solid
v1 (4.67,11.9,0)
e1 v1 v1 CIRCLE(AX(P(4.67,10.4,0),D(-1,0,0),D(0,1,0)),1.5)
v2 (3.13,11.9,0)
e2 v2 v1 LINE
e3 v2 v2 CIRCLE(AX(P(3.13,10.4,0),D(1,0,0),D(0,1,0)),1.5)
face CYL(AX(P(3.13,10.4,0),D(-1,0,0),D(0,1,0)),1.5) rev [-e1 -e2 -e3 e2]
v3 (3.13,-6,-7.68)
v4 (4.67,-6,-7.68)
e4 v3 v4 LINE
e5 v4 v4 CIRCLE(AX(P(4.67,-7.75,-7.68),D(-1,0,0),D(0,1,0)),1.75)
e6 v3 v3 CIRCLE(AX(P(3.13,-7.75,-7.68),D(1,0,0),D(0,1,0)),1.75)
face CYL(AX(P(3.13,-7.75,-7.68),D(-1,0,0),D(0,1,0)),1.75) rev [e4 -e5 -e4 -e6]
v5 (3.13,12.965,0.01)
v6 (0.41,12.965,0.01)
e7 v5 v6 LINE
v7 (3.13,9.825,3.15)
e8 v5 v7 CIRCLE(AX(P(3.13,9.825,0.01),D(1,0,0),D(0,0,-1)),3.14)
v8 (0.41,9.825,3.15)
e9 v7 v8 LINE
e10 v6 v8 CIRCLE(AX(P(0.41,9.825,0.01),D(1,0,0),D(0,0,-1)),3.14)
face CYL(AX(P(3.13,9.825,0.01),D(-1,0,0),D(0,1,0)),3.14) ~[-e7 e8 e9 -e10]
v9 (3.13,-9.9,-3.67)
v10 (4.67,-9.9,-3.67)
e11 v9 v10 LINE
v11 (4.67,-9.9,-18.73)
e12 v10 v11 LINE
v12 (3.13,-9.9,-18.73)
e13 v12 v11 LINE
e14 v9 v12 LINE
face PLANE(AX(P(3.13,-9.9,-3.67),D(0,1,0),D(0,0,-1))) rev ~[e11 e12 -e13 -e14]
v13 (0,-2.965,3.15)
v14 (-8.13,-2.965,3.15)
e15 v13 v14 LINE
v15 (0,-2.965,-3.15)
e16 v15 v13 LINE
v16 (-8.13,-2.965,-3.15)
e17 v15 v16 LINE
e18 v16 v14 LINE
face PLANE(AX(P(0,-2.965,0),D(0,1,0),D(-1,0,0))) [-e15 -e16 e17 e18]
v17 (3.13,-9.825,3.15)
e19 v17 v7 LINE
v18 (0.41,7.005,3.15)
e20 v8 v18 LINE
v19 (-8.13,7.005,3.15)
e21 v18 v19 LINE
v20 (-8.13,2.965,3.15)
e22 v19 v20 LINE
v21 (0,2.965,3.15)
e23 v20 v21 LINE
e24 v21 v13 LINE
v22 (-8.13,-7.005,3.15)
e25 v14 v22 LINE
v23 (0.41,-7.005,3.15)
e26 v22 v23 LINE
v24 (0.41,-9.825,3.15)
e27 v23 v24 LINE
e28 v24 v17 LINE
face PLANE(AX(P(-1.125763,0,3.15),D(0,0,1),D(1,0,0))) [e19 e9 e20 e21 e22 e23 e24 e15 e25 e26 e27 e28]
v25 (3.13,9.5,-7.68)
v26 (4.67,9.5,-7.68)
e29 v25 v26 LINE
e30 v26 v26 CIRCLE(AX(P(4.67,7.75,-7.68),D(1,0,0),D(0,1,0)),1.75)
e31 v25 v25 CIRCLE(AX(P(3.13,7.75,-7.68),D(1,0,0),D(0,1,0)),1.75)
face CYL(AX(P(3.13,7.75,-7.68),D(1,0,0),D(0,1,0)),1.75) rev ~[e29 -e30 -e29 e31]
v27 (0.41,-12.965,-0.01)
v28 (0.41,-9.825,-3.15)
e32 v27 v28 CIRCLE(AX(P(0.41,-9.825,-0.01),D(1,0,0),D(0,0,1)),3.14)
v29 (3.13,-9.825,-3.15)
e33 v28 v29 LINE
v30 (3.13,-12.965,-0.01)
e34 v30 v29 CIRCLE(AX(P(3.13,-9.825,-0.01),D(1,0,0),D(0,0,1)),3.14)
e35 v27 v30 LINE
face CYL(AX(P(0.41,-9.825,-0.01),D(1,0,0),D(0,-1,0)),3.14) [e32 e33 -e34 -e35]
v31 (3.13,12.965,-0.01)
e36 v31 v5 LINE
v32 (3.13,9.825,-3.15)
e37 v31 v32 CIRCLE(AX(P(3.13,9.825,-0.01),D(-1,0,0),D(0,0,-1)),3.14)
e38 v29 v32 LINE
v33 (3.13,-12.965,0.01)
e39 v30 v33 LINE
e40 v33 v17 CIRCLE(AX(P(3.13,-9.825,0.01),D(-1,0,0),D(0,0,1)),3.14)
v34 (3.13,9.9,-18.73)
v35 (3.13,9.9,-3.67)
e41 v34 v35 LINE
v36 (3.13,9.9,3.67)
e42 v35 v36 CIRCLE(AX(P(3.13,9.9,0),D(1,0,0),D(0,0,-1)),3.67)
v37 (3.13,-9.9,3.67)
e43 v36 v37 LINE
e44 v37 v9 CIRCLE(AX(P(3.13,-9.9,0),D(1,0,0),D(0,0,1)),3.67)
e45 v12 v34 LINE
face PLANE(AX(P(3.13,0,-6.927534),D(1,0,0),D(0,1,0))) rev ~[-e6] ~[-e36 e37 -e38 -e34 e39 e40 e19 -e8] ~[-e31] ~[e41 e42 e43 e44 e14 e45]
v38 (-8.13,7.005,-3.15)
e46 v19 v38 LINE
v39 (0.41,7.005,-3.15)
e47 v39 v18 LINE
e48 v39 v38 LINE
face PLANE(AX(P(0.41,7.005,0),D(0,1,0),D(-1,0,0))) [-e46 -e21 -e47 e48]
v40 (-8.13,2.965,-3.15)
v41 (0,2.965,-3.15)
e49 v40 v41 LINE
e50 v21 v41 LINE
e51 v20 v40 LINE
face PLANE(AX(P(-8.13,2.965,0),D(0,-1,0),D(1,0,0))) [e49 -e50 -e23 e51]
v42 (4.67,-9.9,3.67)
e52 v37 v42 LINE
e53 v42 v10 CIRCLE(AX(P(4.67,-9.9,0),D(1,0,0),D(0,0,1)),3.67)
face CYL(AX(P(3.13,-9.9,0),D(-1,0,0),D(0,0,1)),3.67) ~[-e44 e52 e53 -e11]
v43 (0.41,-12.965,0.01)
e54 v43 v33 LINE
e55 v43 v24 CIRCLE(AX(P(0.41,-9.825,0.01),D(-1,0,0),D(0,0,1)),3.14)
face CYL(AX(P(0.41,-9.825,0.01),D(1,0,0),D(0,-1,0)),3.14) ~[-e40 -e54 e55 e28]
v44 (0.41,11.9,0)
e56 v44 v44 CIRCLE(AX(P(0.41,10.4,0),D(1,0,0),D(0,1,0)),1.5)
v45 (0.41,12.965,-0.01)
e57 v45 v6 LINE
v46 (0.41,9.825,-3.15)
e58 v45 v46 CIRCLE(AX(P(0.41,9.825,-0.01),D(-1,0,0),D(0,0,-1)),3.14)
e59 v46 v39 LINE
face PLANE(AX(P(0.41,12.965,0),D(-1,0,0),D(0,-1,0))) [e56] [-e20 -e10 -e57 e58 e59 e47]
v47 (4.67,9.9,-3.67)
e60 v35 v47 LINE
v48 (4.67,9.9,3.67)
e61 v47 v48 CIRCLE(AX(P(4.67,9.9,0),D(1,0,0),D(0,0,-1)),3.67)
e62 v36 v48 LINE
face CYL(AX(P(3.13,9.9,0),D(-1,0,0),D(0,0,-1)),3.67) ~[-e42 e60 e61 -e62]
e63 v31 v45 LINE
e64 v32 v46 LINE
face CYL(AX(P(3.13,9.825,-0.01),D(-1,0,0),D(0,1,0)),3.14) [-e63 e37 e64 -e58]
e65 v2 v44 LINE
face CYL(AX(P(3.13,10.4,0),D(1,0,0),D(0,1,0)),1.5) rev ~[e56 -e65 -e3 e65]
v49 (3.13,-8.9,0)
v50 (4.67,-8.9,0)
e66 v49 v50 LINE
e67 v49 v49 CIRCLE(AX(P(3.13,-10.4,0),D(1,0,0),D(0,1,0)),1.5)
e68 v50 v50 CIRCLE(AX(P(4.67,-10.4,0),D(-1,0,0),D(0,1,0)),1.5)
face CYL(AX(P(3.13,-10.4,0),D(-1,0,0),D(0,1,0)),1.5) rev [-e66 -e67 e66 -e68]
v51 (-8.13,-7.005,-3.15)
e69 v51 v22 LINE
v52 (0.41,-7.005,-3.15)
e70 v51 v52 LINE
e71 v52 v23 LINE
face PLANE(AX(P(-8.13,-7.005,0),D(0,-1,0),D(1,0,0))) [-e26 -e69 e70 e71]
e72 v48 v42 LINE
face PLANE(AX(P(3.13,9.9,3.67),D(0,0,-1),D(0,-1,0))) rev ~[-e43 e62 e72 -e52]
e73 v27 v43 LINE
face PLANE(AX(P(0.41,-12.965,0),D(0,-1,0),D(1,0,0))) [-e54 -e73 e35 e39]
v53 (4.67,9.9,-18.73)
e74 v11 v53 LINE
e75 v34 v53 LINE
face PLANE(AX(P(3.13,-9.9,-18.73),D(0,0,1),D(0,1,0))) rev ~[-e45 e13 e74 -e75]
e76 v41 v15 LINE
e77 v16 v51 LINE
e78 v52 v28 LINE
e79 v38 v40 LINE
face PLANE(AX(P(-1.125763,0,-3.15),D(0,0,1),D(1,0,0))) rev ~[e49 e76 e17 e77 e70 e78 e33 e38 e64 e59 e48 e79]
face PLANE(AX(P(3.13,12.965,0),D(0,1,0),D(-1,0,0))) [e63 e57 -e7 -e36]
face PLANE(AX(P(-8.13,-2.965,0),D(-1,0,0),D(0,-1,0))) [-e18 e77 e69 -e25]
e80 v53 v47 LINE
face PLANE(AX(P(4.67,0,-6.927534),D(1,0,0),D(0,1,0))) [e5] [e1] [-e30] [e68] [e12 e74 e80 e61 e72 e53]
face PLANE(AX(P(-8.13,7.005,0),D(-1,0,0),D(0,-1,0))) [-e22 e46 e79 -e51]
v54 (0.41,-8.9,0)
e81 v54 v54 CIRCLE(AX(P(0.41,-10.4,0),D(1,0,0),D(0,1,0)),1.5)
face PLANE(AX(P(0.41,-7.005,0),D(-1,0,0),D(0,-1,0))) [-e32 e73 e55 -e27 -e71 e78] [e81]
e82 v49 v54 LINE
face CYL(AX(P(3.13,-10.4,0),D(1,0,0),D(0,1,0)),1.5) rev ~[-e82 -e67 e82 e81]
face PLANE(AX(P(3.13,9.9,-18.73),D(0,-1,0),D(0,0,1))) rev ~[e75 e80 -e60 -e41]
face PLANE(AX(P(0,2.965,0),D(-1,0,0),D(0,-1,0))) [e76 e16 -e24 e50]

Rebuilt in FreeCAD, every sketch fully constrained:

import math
import FreeCAD as App
import Part
import Sketcher

V = App.Vector


def edges_at(feature, points):
    """Names of the edges that pass closest to the given points."""
    edges = feature.Shape.Edges
    near = lambda p: min(range(len(edges)), key=lambda i: edges[i].distToShape(Part.Vertex(*p))[0])
    return sorted({f"Edge{near(p) + 1}" for p in points})

doc = App.newDocument("Part")
body = doc.addObject("PartDesign::Body", "Body")

# Sketch on XY plane
sketch1 = body.newObject("Sketcher::SketchObject", "Sketch")
sketch1.AttachmentSupport = (doc.getObject("XY_Plane"), [""])
sketch1.MapMode = "FlatFace"
sketch1.addGeometry(Part.LineSegment(V(0, 3, 0), V(0, -3, 0)), False)
sketch1.addGeometry(Part.LineSegment(V(0, -3, 0), V(-8.1, -3, 0)), False)
sketch1.addGeometry(Part.LineSegment(V(-8.1, -3, 0), V(-8.1, -7, 0)), False)
sketch1.addGeometry(Part.LineSegment(V(-8.1, -7, 0), V(0.4, -7, 0)), False)
sketch1.addGeometry(Part.LineSegment(V(0.4, -7, 0), V(0.4, -13, 0)), False)
sketch1.addGeometry(Part.LineSegment(V(0.4, -13, 0), V(3.1, -13, 0)), False)
sketch1.addGeometry(Part.LineSegment(V(3.1, -13, 0), V(3.1, 13, 0)), False)
sketch1.addGeometry(Part.LineSegment(V(3.1, 13, 0), V(0.4, 13, 0)), False)
sketch1.addGeometry(Part.LineSegment(V(0.4, 13, 0), V(0.4, 7, 0)), False)
sketch1.addGeometry(Part.LineSegment(V(0.4, 7, 0), V(-8.1, 7, 0)), False)
sketch1.addGeometry(Part.LineSegment(V(-8.1, 7, 0), V(-8.1, 3, 0)), False)
sketch1.addGeometry(Part.LineSegment(V(-8.1, 3, 0), V(0, 3, 0)), False)
sketch1.addConstraint(Sketcher.Constraint("Coincident", 0, 2, 1, 1))
sketch1.addConstraint(Sketcher.Constraint("Coincident", 1, 2, 2, 1))
sketch1.addConstraint(Sketcher.Constraint("Coincident", 2, 2, 3, 1))
sketch1.addConstraint(Sketcher.Constraint("Coincident", 3, 2, 4, 1))
sketch1.addConstraint(Sketcher.Constraint("Coincident", 4, 2, 5, 1))
sketch1.addConstraint(Sketcher.Constraint("Coincident", 5, 2, 6, 1))
sketch1.addConstraint(Sketcher.Constraint("Coincident", 6, 2, 7, 1))
sketch1.addConstraint(Sketcher.Constraint("Coincident", 7, 2, 8, 1))
sketch1.addConstraint(Sketcher.Constraint("Coincident", 8, 2, 9, 1))
sketch1.addConstraint(Sketcher.Constraint("Coincident", 9, 2, 10, 1))
sketch1.addConstraint(Sketcher.Constraint("Coincident", 10, 2, 11, 1))
sketch1.addConstraint(Sketcher.Constraint("Coincident", 11, 2, 0, 1))
sketch1.addConstraint(Sketcher.Constraint("Vertical", 0))
sketch1.addConstraint(Sketcher.Constraint("Horizontal", 1))
sketch1.addConstraint(Sketcher.Constraint("Vertical", 2))
sketch1.addConstraint(Sketcher.Constraint("Horizontal", 3))
sketch1.addConstraint(Sketcher.Constraint("Vertical", 4))
sketch1.addConstraint(Sketcher.Constraint("Horizontal", 5))
sketch1.addConstraint(Sketcher.Constraint("Vertical", 6))
sketch1.addConstraint(Sketcher.Constraint("Horizontal", 7))
sketch1.addConstraint(Sketcher.Constraint("Vertical", 8))
sketch1.addConstraint(Sketcher.Constraint("Horizontal", 9))
sketch1.addConstraint(Sketcher.Constraint("Vertical", 10))
sketch1.addConstraint(Sketcher.Constraint("Horizontal", 11))
sketch1.addConstraint(Sketcher.Constraint("Symmetric", 0, 2, 11, 2, -1, 1))
sketch1.addConstraint(Sketcher.Constraint("Symmetric", 4, 2, 7, 2, -1))
sketch1.addConstraint(Sketcher.Constraint("Symmetric", 2, 2, 9, 2, -1))
sketch1.addConstraint(Sketcher.Constraint("DistanceY", 4, 2, 0, 2, 10.0))
sketch1.addConstraint(Sketcher.Constraint("DistanceX", 1, 2, 1, 1, 8.13))
sketch1.addConstraint(Sketcher.Constraint("DistanceX", 3, 1, 3, 2, 8.54))
sketch1.addConstraint(Sketcher.Constraint("DistanceX", 5, 1, 5, 2, 2.72))
sketch1.addConstraint(Sketcher.Constraint("DistanceY", 0, 2, 0, 1, 5.93))
sketch1.addConstraint(Sketcher.Constraint("DistanceY", 2, 2, 2, 1, 4.04))
pad1 = body.newObject("PartDesign::Pad", "Pad")
pad1.Profile = sketch1
pad1.Length = 6.3
pad1.Midplane = True
doc.recompute()

fillet = body.newObject("PartDesign::Fillet", "Fillet")
fillet.Base = (pad1, edges_at(pad1, [
    (1.77, 12.965, 3.15),
    (1.77, 12.965, -3.15),
    (1.77, -12.965, 3.15),
    (1.77, -12.965, -3.15),
]))
fillet.Radius = 3.14

# Sketch on YZ plane
sketch2 = body.newObject("Sketcher::SketchObject", "Sketch001")
sketch2.AttachmentSupport = (doc.getObject("YZ_Plane"), [""])
sketch2.MapMode = "FlatFace"
sketch2.AttachmentOffset = App.Placement(V(0, 0, 3.13), App.Rotation())
sketch2.addGeometry(Part.LineSegment(V(-9.9, -3.7, 0), V(-9.9, -18.7, 0)), False)
sketch2.addGeometry(Part.LineSegment(V(-9.9, -18.7, 0), V(9.9, -18.7, 0)), False)
sketch2.addGeometry(Part.LineSegment(V(9.9, -18.7, 0), V(9.9, -3.7, 0)), False)
sketch2.addGeometry(Part.ArcOfCircle(Part.Circle(V(9.9, 0, 0), V(0, 0, 1), 3.7), math.radians(-90), math.radians(90)), False)
sketch2.addGeometry(Part.LineSegment(V(9.9, 3.7, 0), V(-9.9, 3.7, 0)), False)
sketch2.addGeometry(Part.ArcOfCircle(Part.Circle(V(-9.9, 0, 0), V(0, 0, 1), 3.7), math.radians(90), math.radians(270)), False)
sketch2.addConstraint(Sketcher.Constraint("Coincident", 0, 2, 1, 1))
sketch2.addConstraint(Sketcher.Constraint("Coincident", 1, 2, 2, 1))
sketch2.addConstraint(Sketcher.Constraint("Coincident", 2, 2, 3, 1))
sketch2.addConstraint(Sketcher.Constraint("Tangent", 3, 2, 4, 1))
sketch2.addConstraint(Sketcher.Constraint("Tangent", 4, 2, 5, 1))
sketch2.addConstraint(Sketcher.Constraint("Coincident", 5, 2, 0, 1))
sketch2.addConstraint(Sketcher.Constraint("Vertical", 0))
sketch2.addConstraint(Sketcher.Constraint("Horizontal", 1))
sketch2.addConstraint(Sketcher.Constraint("Vertical", 2))
sketch2.addConstraint(Sketcher.Constraint("Horizontal", 4))
sketch2.addConstraint(Sketcher.Constraint("Equal", 3, 5))
sketch2.addConstraint(Sketcher.Constraint("Symmetric", 3, 3, 5, 3, -1, 1))
sketch2.addConstraint(Sketcher.Constraint("Vertical", 5, 3, 0, 2))
sketch2.addConstraint(Sketcher.Constraint("Vertical", 3, 3, 1, 2))
sketch2.addConstraint(Sketcher.Constraint("Radius", 3, 3.67))
sketch2.addConstraint(Sketcher.Constraint("DistanceX", 1, 1, 1, 2, 19.8))
sketch2.addConstraint(Sketcher.Constraint("DistanceY", 0, 2, 0, 1, 15.06))
pad2 = body.newObject("PartDesign::Pad", "Pad001")
pad2.Profile = sketch2
pad2.Length = 1.54

# Sketch on YZ plane
sketch3 = body.newObject("Sketcher::SketchObject", "Sketch002")
sketch3.AttachmentSupport = (doc.getObject("YZ_Plane"), [""])
sketch3.MapMode = "FlatFace"
sketch3.AttachmentOffset = App.Placement(V(0, 0, 3.13), App.Rotation())
sketch3.addGeometry(Part.Circle(V(-10.4, 0, 0), V(0, 0, 1), 1.5), False)
sketch3.addGeometry(Part.Circle(V(10.4, 0, 0), V(0, 0, 1), 1.5), False)
sketch3.addGeometry(Part.Circle(V(-7.8, -7.7, 0), V(0, 0, 1), 1.8), False)
sketch3.addGeometry(Part.Circle(V(7.8, -7.7, 0), V(0, 0, 1), 1.8), False)
sketch3.addConstraint(Sketcher.Constraint("Equal", 0, 1))
sketch3.addConstraint(Sketcher.Constraint("Equal", 2, 3))
sketch3.addConstraint(Sketcher.Constraint("Symmetric", 0, 3, 1, 3, -1, 1))
sketch3.addConstraint(Sketcher.Constraint("Symmetric", 2, 3, 3, 3, -2))
sketch3.addConstraint(Sketcher.Constraint("PointOnObject", 0, 3, -1))
sketch3.addConstraint(Sketcher.Constraint("Diameter", 0, 3.0))
sketch3.addConstraint(Sketcher.Constraint("Diameter", 2, 3.5))
sketch3.addConstraint(Sketcher.Constraint("DistanceX", 0, 3, -1, 1, 10.4))
sketch3.addConstraint(Sketcher.Constraint("DistanceX", 2, 3, 3, 3, 15.5))
sketch3.addConstraint(Sketcher.Constraint("DistanceY", 2, 3, -1, 1, 7.68))
pocket1 = body.newObject("PartDesign::Pocket", "Pocket")
pocket1.Profile = sketch3
pocket1.Length = 25
pocket1.Midplane = True

doc.recompute()
